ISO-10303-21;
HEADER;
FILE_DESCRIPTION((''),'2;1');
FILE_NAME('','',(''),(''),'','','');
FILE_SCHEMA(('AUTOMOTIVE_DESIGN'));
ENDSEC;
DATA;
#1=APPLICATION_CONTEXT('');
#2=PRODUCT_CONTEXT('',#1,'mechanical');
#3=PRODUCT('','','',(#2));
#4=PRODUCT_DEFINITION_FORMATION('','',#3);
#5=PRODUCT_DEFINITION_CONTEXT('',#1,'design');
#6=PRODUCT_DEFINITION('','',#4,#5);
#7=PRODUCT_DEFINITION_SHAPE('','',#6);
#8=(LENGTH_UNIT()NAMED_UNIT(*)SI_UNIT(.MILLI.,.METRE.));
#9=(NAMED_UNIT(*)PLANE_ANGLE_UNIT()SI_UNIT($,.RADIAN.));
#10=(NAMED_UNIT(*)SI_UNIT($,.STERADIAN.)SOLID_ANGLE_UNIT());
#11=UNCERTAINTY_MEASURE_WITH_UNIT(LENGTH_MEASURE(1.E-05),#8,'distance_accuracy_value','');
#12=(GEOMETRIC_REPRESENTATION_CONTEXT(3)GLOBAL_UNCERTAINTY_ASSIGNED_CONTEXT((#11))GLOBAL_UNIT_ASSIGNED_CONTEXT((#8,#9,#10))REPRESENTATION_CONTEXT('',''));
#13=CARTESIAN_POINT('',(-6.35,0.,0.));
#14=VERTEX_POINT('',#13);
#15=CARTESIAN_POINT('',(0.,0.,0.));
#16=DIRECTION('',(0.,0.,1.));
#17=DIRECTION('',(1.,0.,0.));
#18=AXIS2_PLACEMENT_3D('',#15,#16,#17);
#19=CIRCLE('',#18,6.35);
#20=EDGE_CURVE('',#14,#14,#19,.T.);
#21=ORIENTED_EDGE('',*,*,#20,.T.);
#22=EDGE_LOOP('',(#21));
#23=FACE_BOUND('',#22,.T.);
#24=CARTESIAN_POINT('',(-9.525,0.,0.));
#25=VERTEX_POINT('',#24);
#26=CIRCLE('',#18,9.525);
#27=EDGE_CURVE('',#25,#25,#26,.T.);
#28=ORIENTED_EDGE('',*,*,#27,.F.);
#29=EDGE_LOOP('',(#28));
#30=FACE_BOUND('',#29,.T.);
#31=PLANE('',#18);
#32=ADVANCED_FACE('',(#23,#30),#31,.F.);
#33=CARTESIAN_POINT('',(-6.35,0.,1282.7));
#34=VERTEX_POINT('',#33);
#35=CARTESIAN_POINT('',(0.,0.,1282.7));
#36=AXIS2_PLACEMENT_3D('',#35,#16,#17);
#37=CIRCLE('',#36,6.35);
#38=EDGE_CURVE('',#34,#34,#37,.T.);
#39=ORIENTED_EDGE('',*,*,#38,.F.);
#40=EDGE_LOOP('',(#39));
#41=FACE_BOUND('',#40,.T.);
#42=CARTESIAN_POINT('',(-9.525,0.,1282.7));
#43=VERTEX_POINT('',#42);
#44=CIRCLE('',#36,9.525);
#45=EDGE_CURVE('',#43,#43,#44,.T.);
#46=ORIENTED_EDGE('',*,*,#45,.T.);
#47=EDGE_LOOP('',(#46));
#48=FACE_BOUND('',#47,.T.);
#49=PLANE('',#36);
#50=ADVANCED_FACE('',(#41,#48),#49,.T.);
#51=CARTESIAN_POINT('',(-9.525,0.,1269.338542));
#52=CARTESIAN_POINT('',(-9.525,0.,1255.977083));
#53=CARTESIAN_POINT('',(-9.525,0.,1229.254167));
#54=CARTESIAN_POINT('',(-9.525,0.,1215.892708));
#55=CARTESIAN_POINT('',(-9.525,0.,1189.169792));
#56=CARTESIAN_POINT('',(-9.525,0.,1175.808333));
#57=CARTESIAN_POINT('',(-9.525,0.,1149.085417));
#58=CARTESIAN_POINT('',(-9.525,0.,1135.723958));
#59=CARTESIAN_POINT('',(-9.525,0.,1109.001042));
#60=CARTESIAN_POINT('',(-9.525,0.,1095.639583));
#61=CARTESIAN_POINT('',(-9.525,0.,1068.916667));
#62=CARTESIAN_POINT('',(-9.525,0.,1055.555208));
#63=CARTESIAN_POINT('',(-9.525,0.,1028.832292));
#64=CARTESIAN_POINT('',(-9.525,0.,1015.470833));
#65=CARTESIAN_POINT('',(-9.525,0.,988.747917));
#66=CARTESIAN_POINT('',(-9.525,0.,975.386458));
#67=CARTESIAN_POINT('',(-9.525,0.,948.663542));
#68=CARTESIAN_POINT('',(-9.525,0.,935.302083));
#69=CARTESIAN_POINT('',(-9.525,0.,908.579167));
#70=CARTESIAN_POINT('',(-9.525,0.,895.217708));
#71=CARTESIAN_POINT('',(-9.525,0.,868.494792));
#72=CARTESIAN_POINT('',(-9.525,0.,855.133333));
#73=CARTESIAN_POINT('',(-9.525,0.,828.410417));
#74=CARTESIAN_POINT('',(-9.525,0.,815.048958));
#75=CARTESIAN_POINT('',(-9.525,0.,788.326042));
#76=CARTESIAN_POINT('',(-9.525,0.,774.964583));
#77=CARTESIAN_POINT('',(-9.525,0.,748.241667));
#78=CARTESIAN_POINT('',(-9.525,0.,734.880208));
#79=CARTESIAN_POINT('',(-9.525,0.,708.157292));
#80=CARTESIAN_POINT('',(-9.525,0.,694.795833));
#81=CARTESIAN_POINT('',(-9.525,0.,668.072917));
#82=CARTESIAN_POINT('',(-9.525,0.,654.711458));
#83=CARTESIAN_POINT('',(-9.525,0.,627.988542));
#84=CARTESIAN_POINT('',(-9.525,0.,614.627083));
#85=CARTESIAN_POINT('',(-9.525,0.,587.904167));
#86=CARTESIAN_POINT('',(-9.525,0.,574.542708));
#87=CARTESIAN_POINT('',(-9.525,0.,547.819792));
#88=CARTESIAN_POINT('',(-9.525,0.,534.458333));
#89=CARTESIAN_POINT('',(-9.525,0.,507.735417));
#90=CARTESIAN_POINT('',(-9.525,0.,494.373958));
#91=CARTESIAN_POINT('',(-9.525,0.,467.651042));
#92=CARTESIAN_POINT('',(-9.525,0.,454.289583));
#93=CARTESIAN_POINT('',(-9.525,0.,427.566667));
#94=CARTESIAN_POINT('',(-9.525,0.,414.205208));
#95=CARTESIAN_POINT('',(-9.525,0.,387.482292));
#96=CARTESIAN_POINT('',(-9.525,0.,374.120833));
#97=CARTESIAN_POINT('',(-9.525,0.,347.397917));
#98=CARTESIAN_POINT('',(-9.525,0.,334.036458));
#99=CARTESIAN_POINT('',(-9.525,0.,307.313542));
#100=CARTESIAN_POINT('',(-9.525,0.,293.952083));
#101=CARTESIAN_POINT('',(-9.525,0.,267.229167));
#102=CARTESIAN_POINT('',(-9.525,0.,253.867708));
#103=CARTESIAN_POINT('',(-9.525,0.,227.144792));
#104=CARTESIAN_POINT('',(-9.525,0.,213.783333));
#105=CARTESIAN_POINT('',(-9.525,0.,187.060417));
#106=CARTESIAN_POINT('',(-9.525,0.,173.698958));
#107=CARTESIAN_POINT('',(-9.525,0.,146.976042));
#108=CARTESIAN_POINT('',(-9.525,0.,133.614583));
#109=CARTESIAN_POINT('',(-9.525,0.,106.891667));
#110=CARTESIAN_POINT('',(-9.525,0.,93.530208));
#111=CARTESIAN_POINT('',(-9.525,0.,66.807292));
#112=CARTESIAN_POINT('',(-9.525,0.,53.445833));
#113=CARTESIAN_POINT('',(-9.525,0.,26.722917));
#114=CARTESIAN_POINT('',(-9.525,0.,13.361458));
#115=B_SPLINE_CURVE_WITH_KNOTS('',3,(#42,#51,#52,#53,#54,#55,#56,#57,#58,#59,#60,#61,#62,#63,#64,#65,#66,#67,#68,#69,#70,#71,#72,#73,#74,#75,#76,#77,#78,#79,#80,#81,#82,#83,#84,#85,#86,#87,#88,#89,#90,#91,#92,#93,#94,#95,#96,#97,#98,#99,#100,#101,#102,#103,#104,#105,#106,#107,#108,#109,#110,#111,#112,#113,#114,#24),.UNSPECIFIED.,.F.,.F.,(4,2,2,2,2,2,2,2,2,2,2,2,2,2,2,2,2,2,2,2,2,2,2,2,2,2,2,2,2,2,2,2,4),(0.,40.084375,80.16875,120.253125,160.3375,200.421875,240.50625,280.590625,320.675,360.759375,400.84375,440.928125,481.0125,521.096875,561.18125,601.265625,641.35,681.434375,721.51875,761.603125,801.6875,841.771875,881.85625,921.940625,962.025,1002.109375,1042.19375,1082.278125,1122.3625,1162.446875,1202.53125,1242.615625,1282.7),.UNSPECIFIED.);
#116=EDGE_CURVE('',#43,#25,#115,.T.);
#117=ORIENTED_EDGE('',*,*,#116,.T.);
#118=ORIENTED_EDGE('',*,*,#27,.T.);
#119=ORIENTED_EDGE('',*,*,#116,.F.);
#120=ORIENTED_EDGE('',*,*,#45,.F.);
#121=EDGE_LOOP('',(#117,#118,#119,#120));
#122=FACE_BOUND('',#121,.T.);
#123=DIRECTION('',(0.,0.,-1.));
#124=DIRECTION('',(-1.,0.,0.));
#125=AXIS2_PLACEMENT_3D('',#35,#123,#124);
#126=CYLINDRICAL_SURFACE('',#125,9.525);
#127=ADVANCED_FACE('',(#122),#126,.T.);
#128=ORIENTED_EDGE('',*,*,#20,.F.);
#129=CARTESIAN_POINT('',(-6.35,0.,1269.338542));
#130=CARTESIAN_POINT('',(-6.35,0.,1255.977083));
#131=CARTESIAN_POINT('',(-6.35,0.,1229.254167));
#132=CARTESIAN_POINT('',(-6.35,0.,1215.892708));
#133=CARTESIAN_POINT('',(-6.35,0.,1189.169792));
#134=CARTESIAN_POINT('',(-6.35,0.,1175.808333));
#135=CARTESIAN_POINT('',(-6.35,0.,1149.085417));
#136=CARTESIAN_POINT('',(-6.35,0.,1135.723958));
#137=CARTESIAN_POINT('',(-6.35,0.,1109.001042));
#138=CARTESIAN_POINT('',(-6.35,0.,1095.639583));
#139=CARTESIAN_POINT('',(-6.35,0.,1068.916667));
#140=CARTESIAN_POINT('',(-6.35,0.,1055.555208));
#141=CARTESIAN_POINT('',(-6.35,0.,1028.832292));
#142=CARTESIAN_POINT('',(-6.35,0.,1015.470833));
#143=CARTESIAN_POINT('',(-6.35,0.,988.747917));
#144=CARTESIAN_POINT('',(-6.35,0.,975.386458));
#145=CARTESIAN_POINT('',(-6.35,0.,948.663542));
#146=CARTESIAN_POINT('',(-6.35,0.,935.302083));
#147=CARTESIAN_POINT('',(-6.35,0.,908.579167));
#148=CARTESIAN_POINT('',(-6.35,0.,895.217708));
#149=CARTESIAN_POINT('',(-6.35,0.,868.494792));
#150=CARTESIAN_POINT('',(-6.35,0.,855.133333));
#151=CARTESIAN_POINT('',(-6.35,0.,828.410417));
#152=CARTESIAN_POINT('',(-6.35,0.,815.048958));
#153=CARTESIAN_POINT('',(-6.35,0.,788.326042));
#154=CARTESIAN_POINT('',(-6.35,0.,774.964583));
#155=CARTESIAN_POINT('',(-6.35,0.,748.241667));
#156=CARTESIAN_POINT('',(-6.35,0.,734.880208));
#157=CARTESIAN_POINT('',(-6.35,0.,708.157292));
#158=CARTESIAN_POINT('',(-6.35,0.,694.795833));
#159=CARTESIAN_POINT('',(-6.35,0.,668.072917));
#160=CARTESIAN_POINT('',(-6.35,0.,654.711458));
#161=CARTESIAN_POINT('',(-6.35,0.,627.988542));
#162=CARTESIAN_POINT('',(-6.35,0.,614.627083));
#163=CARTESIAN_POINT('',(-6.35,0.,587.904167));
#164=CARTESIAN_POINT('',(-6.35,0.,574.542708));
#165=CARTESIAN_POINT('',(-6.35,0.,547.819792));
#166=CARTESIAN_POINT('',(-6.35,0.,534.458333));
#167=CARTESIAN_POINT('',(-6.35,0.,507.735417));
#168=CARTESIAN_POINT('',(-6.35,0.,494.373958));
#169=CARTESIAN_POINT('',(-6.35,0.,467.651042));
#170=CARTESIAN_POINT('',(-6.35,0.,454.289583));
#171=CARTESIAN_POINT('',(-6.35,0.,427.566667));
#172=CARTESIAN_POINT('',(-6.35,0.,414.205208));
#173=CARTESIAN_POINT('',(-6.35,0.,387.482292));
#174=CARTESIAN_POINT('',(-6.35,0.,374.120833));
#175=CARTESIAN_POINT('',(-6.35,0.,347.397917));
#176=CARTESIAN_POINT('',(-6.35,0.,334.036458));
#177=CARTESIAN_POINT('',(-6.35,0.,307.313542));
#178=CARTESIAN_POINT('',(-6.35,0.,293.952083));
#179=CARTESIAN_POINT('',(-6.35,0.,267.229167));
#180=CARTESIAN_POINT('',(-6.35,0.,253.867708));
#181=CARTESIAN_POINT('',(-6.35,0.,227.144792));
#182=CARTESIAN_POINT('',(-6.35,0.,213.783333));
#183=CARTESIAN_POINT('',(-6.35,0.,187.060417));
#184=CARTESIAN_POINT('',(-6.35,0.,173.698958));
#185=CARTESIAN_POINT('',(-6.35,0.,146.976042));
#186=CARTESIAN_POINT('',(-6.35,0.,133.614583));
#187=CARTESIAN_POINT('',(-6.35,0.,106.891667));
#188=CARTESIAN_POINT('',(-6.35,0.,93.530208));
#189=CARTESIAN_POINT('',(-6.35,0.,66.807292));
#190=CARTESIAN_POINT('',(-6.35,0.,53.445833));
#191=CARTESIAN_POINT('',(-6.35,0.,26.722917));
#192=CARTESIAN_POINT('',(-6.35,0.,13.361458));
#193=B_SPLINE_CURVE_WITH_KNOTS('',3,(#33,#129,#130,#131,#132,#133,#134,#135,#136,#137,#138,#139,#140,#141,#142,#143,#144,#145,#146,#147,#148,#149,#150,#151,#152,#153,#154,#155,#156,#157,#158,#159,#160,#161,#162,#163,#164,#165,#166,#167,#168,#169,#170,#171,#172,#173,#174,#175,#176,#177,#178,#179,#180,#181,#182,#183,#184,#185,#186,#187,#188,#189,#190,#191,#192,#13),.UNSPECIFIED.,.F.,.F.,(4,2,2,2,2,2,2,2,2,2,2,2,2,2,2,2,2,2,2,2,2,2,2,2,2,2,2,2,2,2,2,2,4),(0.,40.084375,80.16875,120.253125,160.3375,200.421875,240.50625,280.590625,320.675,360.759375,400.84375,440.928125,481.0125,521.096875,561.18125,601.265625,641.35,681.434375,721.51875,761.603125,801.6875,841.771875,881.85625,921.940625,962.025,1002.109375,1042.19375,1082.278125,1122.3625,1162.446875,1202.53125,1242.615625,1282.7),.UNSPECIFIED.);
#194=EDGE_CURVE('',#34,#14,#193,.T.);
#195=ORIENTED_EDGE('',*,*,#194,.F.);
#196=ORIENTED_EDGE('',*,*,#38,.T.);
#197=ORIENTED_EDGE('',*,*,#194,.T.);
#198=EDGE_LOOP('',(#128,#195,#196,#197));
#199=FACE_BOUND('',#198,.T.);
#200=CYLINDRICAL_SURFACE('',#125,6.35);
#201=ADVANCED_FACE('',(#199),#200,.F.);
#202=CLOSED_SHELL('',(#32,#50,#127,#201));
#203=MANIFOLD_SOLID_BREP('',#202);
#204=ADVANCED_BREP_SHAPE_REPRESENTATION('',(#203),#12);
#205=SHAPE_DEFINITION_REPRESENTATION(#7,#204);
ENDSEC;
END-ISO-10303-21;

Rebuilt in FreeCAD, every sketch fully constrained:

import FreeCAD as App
import Part
import Sketcher
Q = App.Units.Quantity

doc = App.newDocument("Part")
params = doc.addObject("Spreadsheet::Sheet", "Params")
for row, (alias, value) in enumerate([
    ("sketch1_diameter", "0.5 in"),
    ("sketch1_diameter2", "0.75 in"),
    ("pad1_length", "50.5 in"),
], start=1):
    params.set(f"A{row}", alias)
    params.set(f"B{row}", "=" + value)
    params.setAlias(f"B{row}", alias)

body = doc.addObject("PartDesign::Body", "Body")

# Sketch on XY plane
sketch1 = body.newObject("Sketcher::SketchObject", "Sketch")
sketch1.AttachmentSupport = (doc.getObject("XY_Plane"), [""])
sketch1.MapMode = "FlatFace"
sketch1.addGeometry([
    Part.Circle(App.Vector(0, 0, 0), App.Vector(0, 0, 1), 9.525),
    Part.Circle(App.Vector(0, 0, 0), App.Vector(0, 0, 1), 6.35),
], False)
sketch1.addConstraint([
    Sketcher.Constraint("Coincident", 0, 3, -1, 1),
    Sketcher.Constraint("Coincident", 1, 3, -1, 1),
    Sketcher.Constraint("Diameter", 1, Q("0.5 in")),
    Sketcher.Constraint("Diameter", 0, Q("0.75 in")),
])
sketch1.setExpression("Constraints[2]", "Params.sketch1_diameter")
sketch1.setExpression("Constraints[3]", "Params.sketch1_diameter2")
pad1 = body.newObject("PartDesign::Pad", "Pad")
pad1.Profile = sketch1
pad1.setExpression("Length", "Params.pad1_length")

doc.recompute()
